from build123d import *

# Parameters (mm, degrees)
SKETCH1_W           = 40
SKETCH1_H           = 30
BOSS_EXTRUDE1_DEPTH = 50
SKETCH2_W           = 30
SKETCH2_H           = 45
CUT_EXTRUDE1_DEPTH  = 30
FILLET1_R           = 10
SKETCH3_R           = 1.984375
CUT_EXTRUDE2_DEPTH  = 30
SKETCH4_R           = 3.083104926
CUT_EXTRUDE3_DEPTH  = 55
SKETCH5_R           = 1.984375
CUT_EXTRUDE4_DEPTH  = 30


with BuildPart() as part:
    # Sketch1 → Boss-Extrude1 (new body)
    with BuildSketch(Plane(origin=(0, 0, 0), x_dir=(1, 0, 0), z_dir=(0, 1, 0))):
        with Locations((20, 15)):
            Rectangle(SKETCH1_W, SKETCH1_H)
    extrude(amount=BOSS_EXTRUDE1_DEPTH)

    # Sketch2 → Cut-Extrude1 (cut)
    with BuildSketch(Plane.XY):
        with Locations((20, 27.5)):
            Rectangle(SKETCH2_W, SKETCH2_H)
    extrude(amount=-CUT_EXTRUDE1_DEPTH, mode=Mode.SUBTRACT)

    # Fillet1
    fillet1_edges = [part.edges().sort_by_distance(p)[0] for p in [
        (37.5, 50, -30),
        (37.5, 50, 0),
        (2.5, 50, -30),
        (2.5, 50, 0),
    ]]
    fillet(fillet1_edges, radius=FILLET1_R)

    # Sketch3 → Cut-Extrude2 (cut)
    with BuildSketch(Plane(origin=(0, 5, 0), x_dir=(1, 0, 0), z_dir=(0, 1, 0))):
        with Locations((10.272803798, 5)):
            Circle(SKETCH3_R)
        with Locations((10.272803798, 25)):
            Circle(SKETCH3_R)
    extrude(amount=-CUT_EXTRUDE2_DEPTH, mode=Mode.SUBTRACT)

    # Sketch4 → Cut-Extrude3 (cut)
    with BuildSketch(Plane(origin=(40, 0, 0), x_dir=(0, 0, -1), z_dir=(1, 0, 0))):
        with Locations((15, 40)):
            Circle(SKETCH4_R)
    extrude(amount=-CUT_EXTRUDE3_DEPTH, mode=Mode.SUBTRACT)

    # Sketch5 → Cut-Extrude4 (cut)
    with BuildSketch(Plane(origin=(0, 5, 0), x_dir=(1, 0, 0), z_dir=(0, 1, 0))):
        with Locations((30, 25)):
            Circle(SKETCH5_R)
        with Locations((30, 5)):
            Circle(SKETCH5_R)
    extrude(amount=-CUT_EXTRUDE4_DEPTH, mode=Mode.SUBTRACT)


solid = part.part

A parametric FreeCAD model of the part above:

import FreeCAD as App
import Part
import Sketcher
from FreeCAD import Vector
Q = App.Units.Quantity


def edges_at(feature, points):
    """Names of the edges that pass closest to the given points."""
    edges = feature.Shape.Edges
    near = lambda p: min(range(len(edges)), key=lambda i: edges[i].distToShape(Part.Vertex(*p))[0])
    return sorted({f"Edge{near(p) + 1}" for p in points})


def add_polygon(sketch, points):
    """Adds a closed chain of lines whose ends are joined by coincident constraints."""
    first, n = sketch.GeometryCount, len(points)
    for a, b in zip(points, points[1:] + points[:1]):
        sketch.addGeometry(Part.LineSegment(App.Vector(*a, 0), App.Vector(*b, 0)), False)
    for i in range(n):
        sketch.addConstraint(Sketcher.Constraint("Coincident", first + i, 2, first + (i + 1) % n, 1))

doc = App.newDocument("Part")
body = doc.addObject("PartDesign::Body", "Body")

sketch1 = doc.addObject("Sketcher::SketchObject", "Sketch")
body.addObject(sketch1)
sketch1.AttachmentSupport = (doc.XZ_Plane, [""])
sketch1.MapMode = "FlatFace"
add_polygon(sketch1, [(0, -30), (0, 0), (40, 0), (40, -30)])
sketch1.addConstraint([
    Sketcher.Constraint("Vertical", 0),
    Sketcher.Constraint("Horizontal", 1),
    Sketcher.Constraint("Vertical", 2),
    Sketcher.Constraint("Horizontal", 3),
    Sketcher.Constraint("Coincident", 0, 2, -1, 1),
    Sketcher.Constraint("DistanceX", 1, 1, 1, 2, Q("40 mm")),
    Sketcher.Constraint("DistanceY", 0, 1, 0, 2, Q("30 mm")),
])
pad1 = doc.addObject("PartDesign::Pad", "Pad")
body.addObject(pad1)
pad1.Profile = sketch1
pad1.Length = 50
pad1.Reversed = True

sketch2 = doc.addObject("Sketcher::SketchObject", "Sketch001")
body.addObject(sketch2)
sketch2.AttachmentSupport = (doc.XY_Plane, [""])
sketch2.MapMode = "FlatFace"
add_polygon(sketch2, [(5, 50), (5, 5), (35, 5), (35, 50)])
sketch2.addConstraint([
    Sketcher.Constraint("Vertical", 0),
    Sketcher.Constraint("Horizontal", 1),
    Sketcher.Constraint("Vertical", 2),
    Sketcher.Constraint("Horizontal", 3),
    Sketcher.Constraint("DistanceX", 1, 1, 1, 2, Q("30 mm")),
    Sketcher.Constraint("DistanceY", 0, 2, 0, 1, Q("45 mm")),
    Sketcher.Constraint("DistanceX", -1, 1, 0, 2, Q("5 mm")),
    Sketcher.Constraint("DistanceY", -1, 1, 0, 2, Q("5 mm")),
])
pocket1 = doc.addObject("PartDesign::Pocket", "Pocket")
body.addObject(pocket1)
pocket1.Profile = sketch2
pocket1.Length = 30
doc.recompute()

fillet = doc.addObject("PartDesign::Fillet", "Fillet")
body.addObject(fillet)
fillet.Base = (pocket1, edges_at(pocket1, [
    (37.5, 50, -30),
    (37.5, 50, 0),
    (2.5, 50, -30),
    (2.5, 50, 0),
]))
fillet.Radius = 10

sketch3 = doc.addObject("Sketcher::SketchObject", "Sketch002")
body.addObject(sketch3)
sketch3.AttachmentSupport = (doc.XZ_Plane, [""])
sketch3.MapMode = "FlatFace"
sketch3.AttachmentOffset = App.Placement(Vector(0, 0, -5), App.Rotation())
sketch3.addGeometry([
    Part.Circle(Vector(10.3, -5, 0), Vector(0, 0, 1), 2),
    Part.Circle(Vector(10.3, -25, 0), Vector(0, 0, 1), 2),
], False)
sketch3.addConstraint([
    Sketcher.Constraint("Equal", 0, 1),
    Sketcher.Constraint("Vertical", 0, 3, 1, 3),
    Sketcher.Constraint("DistanceY", 0, 3, -1, 1, Q("5 mm")),
    Sketcher.Constraint("DistanceY", 1, 3, -1, 1, Q("25 mm")),
    Sketcher.Constraint("Diameter", 0, Q("3.96875 mm")),
    Sketcher.Constraint("DistanceX", -1, 1, 0, 3, Q("10.272804 mm")),
])
pocket2 = doc.addObject("PartDesign::Pocket", "Pocket001")
body.addObject(pocket2)
pocket2.Profile = sketch3
pocket2.Length = 30
pocket2.Reversed = True

sketch4 = doc.addObject("Sketcher::SketchObject", "Sketch003")
body.addObject(sketch4)
sketch4.AttachmentSupport = (doc.YZ_Plane, [""])
sketch4.MapMode = "FlatFace"
sketch4.AttachmentOffset = App.Placement(Vector(0, 0, 40), App.Rotation())
sketch4.addGeometry(Part.Circle(Vector(40, -15, 0), Vector(0, 0, 1), 3.1), False)
sketch4.addConstraint([
    Sketcher.Constraint("DistanceX", -1, 1, 0, 3, Q("40 mm")),
    Sketcher.Constraint("DistanceY", 0, 3, -1, 1, Q("15 mm")),
    Sketcher.Constraint("Diameter", 0, Q("6.16621 mm")),
])
pocket3 = doc.addObject("PartDesign::Pocket", "Pocket002")
body.addObject(pocket3)
pocket3.Profile = sketch4
pocket3.Length = 55

sketch5 = doc.addObject("Sketcher::SketchObject", "Sketch004")
body.addObject(sketch5)
sketch5.AttachmentSupport = (doc.XZ_Plane, [""])
sketch5.MapMode = "FlatFace"
sketch5.AttachmentOffset = App.Placement(Vector(0, 0, -5), App.Rotation())
sketch5.addGeometry([
    Part.Circle(Vector(30, -25, 0), Vector(0, 0, 1), 2),
    Part.Circle(Vector(30, -5, 0), Vector(0, 0, 1), 2),
], False)
sketch5.addConstraint([
    Sketcher.Constraint("Equal", 0, 1),
    Sketcher.Constraint("Vertical", 0, 3, 1, 3),
    Sketcher.Constraint("DistanceX", -1, 1, 0, 3, Q("30 mm")),
    Sketcher.Constraint("DistanceY", 0, 3, -1, 1, Q("25 mm")),
    Sketcher.Constraint("DistanceY", 1, 3, -1, 1, Q("5 mm")),
    Sketcher.Constraint("Diameter", 0, Q("3.96875 mm")),
])
pocket4 = doc.addObject("PartDesign::Pocket", "Pocket003")
body.addObject(pocket4)
pocket4.Profile = sketch5
pocket4.Length = 30
pocket4.Reversed = True

doc.recompute()
